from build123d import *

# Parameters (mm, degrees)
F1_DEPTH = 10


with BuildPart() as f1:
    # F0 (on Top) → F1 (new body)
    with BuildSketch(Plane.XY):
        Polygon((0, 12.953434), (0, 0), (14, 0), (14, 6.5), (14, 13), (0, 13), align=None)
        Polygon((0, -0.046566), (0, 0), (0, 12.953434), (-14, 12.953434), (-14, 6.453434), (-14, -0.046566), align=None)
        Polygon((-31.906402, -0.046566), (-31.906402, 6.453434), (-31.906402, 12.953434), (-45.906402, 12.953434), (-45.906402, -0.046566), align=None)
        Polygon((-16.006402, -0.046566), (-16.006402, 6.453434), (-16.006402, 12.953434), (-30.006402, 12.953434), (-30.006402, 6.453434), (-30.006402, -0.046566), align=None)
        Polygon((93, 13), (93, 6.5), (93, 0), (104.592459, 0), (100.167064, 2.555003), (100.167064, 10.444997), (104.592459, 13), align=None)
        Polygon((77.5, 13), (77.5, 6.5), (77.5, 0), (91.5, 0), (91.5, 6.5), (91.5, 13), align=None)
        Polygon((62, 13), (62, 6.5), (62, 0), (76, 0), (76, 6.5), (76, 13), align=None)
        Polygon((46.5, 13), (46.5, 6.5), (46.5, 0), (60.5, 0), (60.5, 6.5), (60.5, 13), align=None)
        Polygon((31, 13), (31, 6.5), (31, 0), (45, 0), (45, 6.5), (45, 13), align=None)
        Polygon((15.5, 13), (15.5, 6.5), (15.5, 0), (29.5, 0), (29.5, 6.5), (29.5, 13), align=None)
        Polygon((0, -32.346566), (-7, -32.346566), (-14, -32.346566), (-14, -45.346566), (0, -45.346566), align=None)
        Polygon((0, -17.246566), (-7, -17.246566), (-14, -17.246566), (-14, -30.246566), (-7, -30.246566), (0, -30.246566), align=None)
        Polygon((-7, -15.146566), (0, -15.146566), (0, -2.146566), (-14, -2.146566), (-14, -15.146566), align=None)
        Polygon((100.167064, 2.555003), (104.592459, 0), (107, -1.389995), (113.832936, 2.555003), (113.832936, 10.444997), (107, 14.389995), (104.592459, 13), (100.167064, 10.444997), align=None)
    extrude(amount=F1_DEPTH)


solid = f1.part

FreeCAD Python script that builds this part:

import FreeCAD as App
import Part
import Sketcher
Q = App.Units.Quantity

doc = App.newDocument("Part")
body = doc.addObject("PartDesign::Body", "Body")
body.AllowCompound = True

# Sketch on XY plane
sketch1 = body.newObject("Sketcher::SketchObject", "Sketch")
sketch1.AttachmentSupport = (doc.getObject("XY_Plane"), [""])
sketch1.MapMode = "FlatFace"
sketch1.addGeometry([
    Part.LineSegment(App.Vector(0, 0, 0), App.Vector(14, 0, 0)),  # 0
    Part.LineSegment(App.Vector(14, 0, 0), App.Vector(14, 13, 0)),  # 1
    Part.LineSegment(App.Vector(14, 13, 0), App.Vector(0, 13, 0)),  # 2
    Part.LineSegment(App.Vector(0, 13, 0), App.Vector(0, 12.953, 0)),  # 3
    Part.LineSegment(App.Vector(0, 12.953, 0), App.Vector(-14, 12.953, 0)),  # 4
    Part.LineSegment(App.Vector(-14, 12.953, 0), App.Vector(-14, -0.047, 0)),  # 5
    Part.LineSegment(App.Vector(-14, -0.047, 0), App.Vector(0, -0.047, 0)),  # 6
    Part.LineSegment(App.Vector(0, -0.047, 0), App.Vector(0, 0, 0)),  # 7
    Part.LineSegment(App.Vector(-31.906, -0.047, 0), App.Vector(-31.906, 12.953, 0)),  # 8
    Part.LineSegment(App.Vector(-31.906, 12.953, 0), App.Vector(-45.906, 12.953, 0)),  # 9
    Part.LineSegment(App.Vector(-45.906, 12.953, 0), App.Vector(-45.906, -0.047, 0)),  # 10
    Part.LineSegment(App.Vector(-45.906, -0.047, 0), App.Vector(-31.906, -0.047, 0)),  # 11
    Part.LineSegment(App.Vector(-16.006, -0.047, 0), App.Vector(-16.006, 12.953, 0)),  # 12
    Part.LineSegment(App.Vector(-16.006, 12.953, 0), App.Vector(-30.006, 12.953, 0)),  # 13
    Part.LineSegment(App.Vector(-30.006, 12.953, 0), App.Vector(-30.006, -0.047, 0)),  # 14
    Part.LineSegment(App.Vector(-30.006, -0.047, 0), App.Vector(-16.006, -0.047, 0)),  # 15
    Part.LineSegment(App.Vector(93, 13, 0), App.Vector(93, 0, 0)),  # 16
    Part.LineSegment(App.Vector(93, 0, 0), App.Vector(104.592, 0, 0)),  # 17
    Part.LineSegment(App.Vector(104.592, 0, 0), App.Vector(107, -1.39, 0)),  # 18
    Part.LineSegment(App.Vector(107, -1.39, 0), App.Vector(113.833, 2.555, 0)),  # 19
    Part.LineSegment(App.Vector(113.833, 2.555, 0), App.Vector(113.833, 10.445, 0)),  # 20
    Part.LineSegment(App.Vector(113.833, 10.445, 0), App.Vector(107, 14.39, 0)),  # 21
    Part.LineSegment(App.Vector(107, 14.39, 0), App.Vector(104.592, 13, 0)),  # 22
    Part.LineSegment(App.Vector(104.592, 13, 0), App.Vector(93, 13, 0)),  # 23
    Part.LineSegment(App.Vector(77.5, 13, 0), App.Vector(77.5, 0, 0)),  # 24
    Part.LineSegment(App.Vector(77.5, 0, 0), App.Vector(91.5, 0, 0)),  # 25
    Part.LineSegment(App.Vector(91.5, 0, 0), App.Vector(91.5, 13, 0)),  # 26
    Part.LineSegment(App.Vector(91.5, 13, 0), App.Vector(77.5, 13, 0)),  # 27
    Part.LineSegment(App.Vector(62, 13, 0), App.Vector(62, 0, 0)),  # 28
    Part.LineSegment(App.Vector(62, 0, 0), App.Vector(76, 0, 0)),  # 29
    Part.LineSegment(App.Vector(76, 0, 0), App.Vector(76, 13, 0)),  # 30
    Part.LineSegment(App.Vector(76, 13, 0), App.Vector(62, 13, 0)),  # 31
    Part.LineSegment(App.Vector(46.5, 13, 0), App.Vector(46.5, 0, 0)),  # 32
    Part.LineSegment(App.Vector(46.5, 0, 0), App.Vector(60.5, 0, 0)),  # 33
    Part.LineSegment(App.Vector(60.5, 0, 0), App.Vector(60.5, 13, 0)),  # 34
    Part.LineSegment(App.Vector(60.5, 13, 0), App.Vector(46.5, 13, 0)),  # 35
    Part.LineSegment(App.Vector(31, 13, 0), App.Vector(31, 0, 0)),  # 36
    Part.LineSegment(App.Vector(31, 0, 0), App.Vector(45, 0, 0)),  # 37
    Part.LineSegment(App.Vector(45, 0, 0), App.Vector(45, 13, 0)),  # 38
    Part.LineSegment(App.Vector(45, 13, 0), App.Vector(31, 13, 0)),  # 39
    Part.LineSegment(App.Vector(15.5, 13, 0), App.Vector(15.5, 0, 0)),  # 40
    Part.LineSegment(App.Vector(15.5, 0, 0), App.Vector(29.5, 0, 0)),  # 41
    Part.LineSegment(App.Vector(29.5, 0, 0), App.Vector(29.5, 13, 0)),  # 42
    Part.LineSegment(App.Vector(29.5, 13, 0), App.Vector(15.5, 13, 0)),  # 43
    Part.LineSegment(App.Vector(0, -32.347, 0), App.Vector(-14, -32.347, 0)),  # 44
    Part.LineSegment(App.Vector(-14, -32.347, 0), App.Vector(-14, -45.347, 0)),  # 45
    Part.LineSegment(App.Vector(-14, -45.347, 0), App.Vector(0, -45.347, 0)),  # 46
    Part.LineSegment(App.Vector(0, -45.347, 0), App.Vector(0, -32.347, 0)),  # 47
    Part.LineSegment(App.Vector(0, -17.247, 0), App.Vector(-14, -17.247, 0)),  # 48
    Part.LineSegment(App.Vector(-14, -17.247, 0), App.Vector(-14, -30.247, 0)),  # 49
    Part.LineSegment(App.Vector(-14, -30.247, 0), App.Vector(0, -30.247, 0)),  # 50
    Part.LineSegment(App.Vector(0, -30.247, 0), App.Vector(0, -17.247, 0)),  # 51
    Part.LineSegment(App.Vector(0, -15.147, 0), App.Vector(0, -2.147, 0)),  # 52
    Part.LineSegment(App.Vector(0, -2.147, 0), App.Vector(-14, -2.147, 0)),  # 53
    Part.LineSegment(App.Vector(-14, -2.147, 0), App.Vector(-14, -15.147, 0)),  # 54
    Part.LineSegment(App.Vector(-14, -15.147, 0), App.Vector(0, -15.147, 0)),  # 55
], False)
sketch1.addConstraint([
    Sketcher.Constraint("Coincident", 0, 2, 1, 1),
    Sketcher.Constraint("Coincident", 1, 2, 2, 1),
    Sketcher.Constraint("Coincident", 2, 2, 3, 1),
    Sketcher.Constraint("Coincident", 3, 2, 4, 1),
    Sketcher.Constraint("Coincident", 4, 2, 5, 1),
    Sketcher.Constraint("Coincident", 5, 2, 6, 1),
    Sketcher.Constraint("Coincident", 6, 2, 7, 1),
    Sketcher.Constraint("Coincident", 7, 2, 0, 1),
    Sketcher.Constraint("Coincident", 8, 2, 9, 1),
    Sketcher.Constraint("Coincident", 9, 2, 10, 1),
    Sketcher.Constraint("Coincident", 10, 2, 11, 1),
    Sketcher.Constraint("Coincident", 11, 2, 8, 1),
    Sketcher.Constraint("Coincident", 12, 2, 13, 1),
    Sketcher.Constraint("Coincident", 13, 2, 14, 1),
    Sketcher.Constraint("Coincident", 14, 2, 15, 1),
    Sketcher.Constraint("Coincident", 15, 2, 12, 1),
    Sketcher.Constraint("Coincident", 16, 2, 17, 1),
    Sketcher.Constraint("Coincident", 17, 2, 18, 1),
    Sketcher.Constraint("Coincident", 18, 2, 19, 1),
    Sketcher.Constraint("Coincident", 19, 2, 20, 1),
    Sketcher.Constraint("Coincident", 20, 2, 21, 1),
    Sketcher.Constraint("Coincident", 21, 2, 22, 1),
    Sketcher.Constraint("Coincident", 22, 2, 23, 1),
    Sketcher.Constraint("Coincident", 23, 2, 16, 1),
    Sketcher.Constraint("Coincident", 24, 2, 25, 1),
    Sketcher.Constraint("Coincident", 25, 2, 26, 1),
    Sketcher.Constraint("Coincident", 26, 2, 27, 1),
    Sketcher.Constraint("Coincident", 27, 2, 24, 1),
    Sketcher.Constraint("Coincident", 28, 2, 29, 1),
    Sketcher.Constraint("Coincident", 29, 2, 30, 1),
    Sketcher.Constraint("Coincident", 30, 2, 31, 1),
    Sketcher.Constraint("Coincident", 31, 2, 28, 1),
    Sketcher.Constraint("Coincident", 32, 2, 33, 1),
    Sketcher.Constraint("Coincident", 33, 2, 34, 1),
    Sketcher.Constraint("Coincident", 34, 2, 35, 1),
    Sketcher.Constraint("Coincident", 35, 2, 32, 1),
    Sketcher.Constraint("Coincident", 36, 2, 37, 1),
    Sketcher.Constraint("Coincident", 37, 2, 38, 1),
    Sketcher.Constraint("Coincident", 38, 2, 39, 1),
    Sketcher.Constraint("Coincident", 39, 2, 36, 1),
    Sketcher.Constraint("Coincident", 40, 2, 41, 1),
    Sketcher.Constraint("Coincident", 41, 2, 42, 1),
    Sketcher.Constraint("Coincident", 42, 2, 43, 1),
    Sketcher.Constraint("Coincident", 43, 2, 40, 1),
    Sketcher.Constraint("Coincident", 44, 2, 45, 1),
    Sketcher.Constraint("Coincident", 45, 2, 46, 1),
    Sketcher.Constraint("Coincident", 46, 2, 47, 1),
    Sketcher.Constraint("Coincident", 47, 2, 44, 1),
    Sketcher.Constraint("Coincident", 48, 2, 49, 1),
    Sketcher.Constraint("Coincident", 49, 2, 50, 1),
    Sketcher.Constraint("Coincident", 50, 2, 51, 1),
    Sketcher.Constraint("Coincident", 51, 2, 48, 1),
    Sketcher.Constraint("Coincident", 52, 2, 53, 1),
    Sketcher.Constraint("Coincident", 53, 2, 54, 1),
    Sketcher.Constraint("Coincident", 54, 2, 55, 1),
    Sketcher.Constraint("Coincident", 55, 2, 52, 1),
    Sketcher.Constraint("Horizontal", 0),
    Sketcher.Constraint("Vertical", 1),
    Sketcher.Constraint("Horizontal", 2),
    Sketcher.Constraint("Vertical", 3),
    Sketcher.Constraint("Horizontal", 4),
    Sketcher.Constraint("Vertical", 5),
    Sketcher.Constraint("Horizontal", 6),
    Sketcher.Constraint("Vertical", 7),
    Sketcher.Constraint("Vertical", 8),
    Sketcher.Constraint("Horizontal", 9),
    Sketcher.Constraint("Vertical", 10),
    Sketcher.Constraint("Horizontal", 11),
    Sketcher.Constraint("Vertical", 12),
    Sketcher.Constraint("Horizontal", 13),
    Sketcher.Constraint("Vertical", 14),
    Sketcher.Constraint("Horizontal", 15),
    Sketcher.Constraint("Vertical", 16),
    Sketcher.Constraint("Horizontal", 17),
    Sketcher.Constraint("Vertical", 20),
    Sketcher.Constraint("Horizontal", 23),
    Sketcher.Constraint("Vertical", 24),
    Sketcher.Constraint("Horizontal", 25),
    Sketcher.Constraint("Vertical", 26),
    Sketcher.Constraint("Horizontal", 27),
    Sketcher.Constraint("Vertical", 28),
    Sketcher.Constraint("Horizontal", 29),
    Sketcher.Constraint("Vertical", 30),
    Sketcher.Constraint("Horizontal", 31),
    Sketcher.Constraint("Vertical", 32),
    Sketcher.Constraint("Horizontal", 33),
    Sketcher.Constraint("Vertical", 34),
    Sketcher.Constraint("Horizontal", 35),
    Sketcher.Constraint("Vertical", 36),
    Sketcher.Constraint("Horizontal", 37),
    Sketcher.Constraint("Vertical", 38),
    Sketcher.Constraint("Horizontal", 39),
    Sketcher.Constraint("Vertical", 40),
    Sketcher.Constraint("Horizontal", 41),
    Sketcher.Constraint("Vertical", 42),
    Sketcher.Constraint("Horizontal", 43),
    Sketcher.Constraint("Horizontal", 44),
    Sketcher.Constraint("Vertical", 45),
    Sketcher.Constraint("Horizontal", 46),
    Sketcher.Constraint("Vertical", 47),
    Sketcher.Constraint("Horizontal", 48),
    Sketcher.Constraint("Vertical", 49),
    Sketcher.Constraint("Horizontal", 50),
    Sketcher.Constraint("Vertical", 51),
    Sketcher.Constraint("Vertical", 52),
    Sketcher.Constraint("Horizontal", 53),
    Sketcher.Constraint("Vertical", 54),
    Sketcher.Constraint("Horizontal", 55),
    Sketcher.Constraint("Coincident", 7, 2, -1, 1),
    Sketcher.Constraint("PointOnObject", 2, 2, -2),
    Sketcher.Constraint("PointOnObject", 16, 2, -1),
    Sketcher.Constraint("PointOnObject", 24, 2, -1),
    Sketcher.Constraint("PointOnObject", 28, 2, -1),
    Sketcher.Constraint("PointOnObject", 32, 2, -1),
    Sketcher.Constraint("PointOnObject", 36, 2, -1),
    Sketcher.Constraint("PointOnObject", 40, 2, -1),
    Sketcher.Constraint("PointOnObject", 46, 2, -2),
    Sketcher.Constraint("PointOnObject", 50, 2, -2),
    Sketcher.Constraint("PointOnObject", 52, 2, -2),
    Sketcher.Constraint("Parallel", 18, 21),
    Sketcher.Constraint("Parallel", 19, 22),
    Sketcher.Constraint("Horizontal", 4, 2, 8, 2),
    Sketcher.Constraint("Horizontal", 6, 2, 10, 2),
    Sketcher.Constraint("Horizontal", 9, 2, 12, 2),
    Sketcher.Constraint("Horizontal", 11, 2, 14, 2),
    Sketcher.Constraint("Horizontal", 2, 2, 22, 2),
    Sketcher.Constraint("Horizontal", 23, 2, 26, 2),
    Sketcher.Constraint("Horizontal", 27, 2, 30, 2),
    Sketcher.Constraint("Horizontal", 31, 2, 34, 2),
    Sketcher.Constraint("Horizontal", 35, 2, 38, 2),
    Sketcher.Constraint("Horizontal", 39, 2, 42, 2),
    Sketcher.Constraint("Vertical", 18, 2, 21, 2),
    Sketcher.Constraint("Vertical", 17, 2, 22, 2),
    Sketcher.Constraint("Vertical", 5, 2, 44, 2),
    Sketcher.Constraint("Vertical", 45, 2, 48, 2),
    Sketcher.Constraint("Vertical", 49, 2, 53, 2),
    Sketcher.Constraint("Equal", 2, 4),
    Sketcher.Constraint("Equal", 6, 9),
    Sketcher.Constraint("Equal", 11, 13),
    Sketcher.Constraint("Equal", 15, 25),
    Sketcher.Constraint("Equal", 27, 29),
    Sketcher.Constraint("Equal", 31, 33),
    Sketcher.Constraint("Equal", 35, 37),
    Sketcher.Constraint("Equal", 39, 41),
    Sketcher.Constraint("Equal", 1, 5),
    Sketcher.Constraint("Equal", 42, 45),
    Sketcher.Constraint("Equal", 47, 49),
    Sketcher.Constraint("Equal", 51, 52),
    Sketcher.Constraint("Equal", 19, 21),
    Sketcher.Constraint("DistanceX", 0, 1, 0, 2, 14.0),
    Sketcher.Constraint("DistanceY", 1, 1, 1, 2, 13.0),
    Sketcher.Constraint("Angle", 18, Q("-30.00001 deg")),
    Sketcher.Constraint("DistanceX", -1, 1, 16, 2, 93.0),
    Sketcher.Constraint("DistanceX", -1, 1, 18, 2, 107.0),
    Sketcher.Constraint("DistanceX", -1, 1, 28, 2, 62.0),
    Sketcher.Constraint("DistanceX", -1, 1, 36, 2, 31.0),
    Sketcher.Constraint("DistanceX", 32, 2, 24, 2, 31.0),
    Sketcher.Constraint("DistanceX", -1, 1, 24, 2, 77.5),
    Sketcher.Constraint("DistanceX", -1, 1, 40, 2, 15.5),
    Sketcher.Constraint("DistanceX", 8, 2, 12, 2, 15.9),
    Sketcher.Constraint("DistanceY", 44, 2, 5, 2, 32.3),
    Sketcher.Constraint("DistanceY", 44, 2, 48, 2, 15.1),
    Sketcher.Constraint("DistanceY", 52, 2, 6, 2, 2.1),
    Sketcher.Constraint("DistanceY", 18, 2, 19, 2, 3.944998),
    Sketcher.Constraint("DistanceX", 17, 1, 17, 2, 11.592459),
    Sketcher.Constraint("DistanceX", 8, 2, -1, 1, 31.906402),
    Sketcher.Constraint("DistanceY", 3, 2, 3, 1, 0.046566),
])
pad1 = body.newObject("PartDesign::Pad", "Pad")
pad1.Profile = sketch1
pad1.Length = 10

doc.recompute()
